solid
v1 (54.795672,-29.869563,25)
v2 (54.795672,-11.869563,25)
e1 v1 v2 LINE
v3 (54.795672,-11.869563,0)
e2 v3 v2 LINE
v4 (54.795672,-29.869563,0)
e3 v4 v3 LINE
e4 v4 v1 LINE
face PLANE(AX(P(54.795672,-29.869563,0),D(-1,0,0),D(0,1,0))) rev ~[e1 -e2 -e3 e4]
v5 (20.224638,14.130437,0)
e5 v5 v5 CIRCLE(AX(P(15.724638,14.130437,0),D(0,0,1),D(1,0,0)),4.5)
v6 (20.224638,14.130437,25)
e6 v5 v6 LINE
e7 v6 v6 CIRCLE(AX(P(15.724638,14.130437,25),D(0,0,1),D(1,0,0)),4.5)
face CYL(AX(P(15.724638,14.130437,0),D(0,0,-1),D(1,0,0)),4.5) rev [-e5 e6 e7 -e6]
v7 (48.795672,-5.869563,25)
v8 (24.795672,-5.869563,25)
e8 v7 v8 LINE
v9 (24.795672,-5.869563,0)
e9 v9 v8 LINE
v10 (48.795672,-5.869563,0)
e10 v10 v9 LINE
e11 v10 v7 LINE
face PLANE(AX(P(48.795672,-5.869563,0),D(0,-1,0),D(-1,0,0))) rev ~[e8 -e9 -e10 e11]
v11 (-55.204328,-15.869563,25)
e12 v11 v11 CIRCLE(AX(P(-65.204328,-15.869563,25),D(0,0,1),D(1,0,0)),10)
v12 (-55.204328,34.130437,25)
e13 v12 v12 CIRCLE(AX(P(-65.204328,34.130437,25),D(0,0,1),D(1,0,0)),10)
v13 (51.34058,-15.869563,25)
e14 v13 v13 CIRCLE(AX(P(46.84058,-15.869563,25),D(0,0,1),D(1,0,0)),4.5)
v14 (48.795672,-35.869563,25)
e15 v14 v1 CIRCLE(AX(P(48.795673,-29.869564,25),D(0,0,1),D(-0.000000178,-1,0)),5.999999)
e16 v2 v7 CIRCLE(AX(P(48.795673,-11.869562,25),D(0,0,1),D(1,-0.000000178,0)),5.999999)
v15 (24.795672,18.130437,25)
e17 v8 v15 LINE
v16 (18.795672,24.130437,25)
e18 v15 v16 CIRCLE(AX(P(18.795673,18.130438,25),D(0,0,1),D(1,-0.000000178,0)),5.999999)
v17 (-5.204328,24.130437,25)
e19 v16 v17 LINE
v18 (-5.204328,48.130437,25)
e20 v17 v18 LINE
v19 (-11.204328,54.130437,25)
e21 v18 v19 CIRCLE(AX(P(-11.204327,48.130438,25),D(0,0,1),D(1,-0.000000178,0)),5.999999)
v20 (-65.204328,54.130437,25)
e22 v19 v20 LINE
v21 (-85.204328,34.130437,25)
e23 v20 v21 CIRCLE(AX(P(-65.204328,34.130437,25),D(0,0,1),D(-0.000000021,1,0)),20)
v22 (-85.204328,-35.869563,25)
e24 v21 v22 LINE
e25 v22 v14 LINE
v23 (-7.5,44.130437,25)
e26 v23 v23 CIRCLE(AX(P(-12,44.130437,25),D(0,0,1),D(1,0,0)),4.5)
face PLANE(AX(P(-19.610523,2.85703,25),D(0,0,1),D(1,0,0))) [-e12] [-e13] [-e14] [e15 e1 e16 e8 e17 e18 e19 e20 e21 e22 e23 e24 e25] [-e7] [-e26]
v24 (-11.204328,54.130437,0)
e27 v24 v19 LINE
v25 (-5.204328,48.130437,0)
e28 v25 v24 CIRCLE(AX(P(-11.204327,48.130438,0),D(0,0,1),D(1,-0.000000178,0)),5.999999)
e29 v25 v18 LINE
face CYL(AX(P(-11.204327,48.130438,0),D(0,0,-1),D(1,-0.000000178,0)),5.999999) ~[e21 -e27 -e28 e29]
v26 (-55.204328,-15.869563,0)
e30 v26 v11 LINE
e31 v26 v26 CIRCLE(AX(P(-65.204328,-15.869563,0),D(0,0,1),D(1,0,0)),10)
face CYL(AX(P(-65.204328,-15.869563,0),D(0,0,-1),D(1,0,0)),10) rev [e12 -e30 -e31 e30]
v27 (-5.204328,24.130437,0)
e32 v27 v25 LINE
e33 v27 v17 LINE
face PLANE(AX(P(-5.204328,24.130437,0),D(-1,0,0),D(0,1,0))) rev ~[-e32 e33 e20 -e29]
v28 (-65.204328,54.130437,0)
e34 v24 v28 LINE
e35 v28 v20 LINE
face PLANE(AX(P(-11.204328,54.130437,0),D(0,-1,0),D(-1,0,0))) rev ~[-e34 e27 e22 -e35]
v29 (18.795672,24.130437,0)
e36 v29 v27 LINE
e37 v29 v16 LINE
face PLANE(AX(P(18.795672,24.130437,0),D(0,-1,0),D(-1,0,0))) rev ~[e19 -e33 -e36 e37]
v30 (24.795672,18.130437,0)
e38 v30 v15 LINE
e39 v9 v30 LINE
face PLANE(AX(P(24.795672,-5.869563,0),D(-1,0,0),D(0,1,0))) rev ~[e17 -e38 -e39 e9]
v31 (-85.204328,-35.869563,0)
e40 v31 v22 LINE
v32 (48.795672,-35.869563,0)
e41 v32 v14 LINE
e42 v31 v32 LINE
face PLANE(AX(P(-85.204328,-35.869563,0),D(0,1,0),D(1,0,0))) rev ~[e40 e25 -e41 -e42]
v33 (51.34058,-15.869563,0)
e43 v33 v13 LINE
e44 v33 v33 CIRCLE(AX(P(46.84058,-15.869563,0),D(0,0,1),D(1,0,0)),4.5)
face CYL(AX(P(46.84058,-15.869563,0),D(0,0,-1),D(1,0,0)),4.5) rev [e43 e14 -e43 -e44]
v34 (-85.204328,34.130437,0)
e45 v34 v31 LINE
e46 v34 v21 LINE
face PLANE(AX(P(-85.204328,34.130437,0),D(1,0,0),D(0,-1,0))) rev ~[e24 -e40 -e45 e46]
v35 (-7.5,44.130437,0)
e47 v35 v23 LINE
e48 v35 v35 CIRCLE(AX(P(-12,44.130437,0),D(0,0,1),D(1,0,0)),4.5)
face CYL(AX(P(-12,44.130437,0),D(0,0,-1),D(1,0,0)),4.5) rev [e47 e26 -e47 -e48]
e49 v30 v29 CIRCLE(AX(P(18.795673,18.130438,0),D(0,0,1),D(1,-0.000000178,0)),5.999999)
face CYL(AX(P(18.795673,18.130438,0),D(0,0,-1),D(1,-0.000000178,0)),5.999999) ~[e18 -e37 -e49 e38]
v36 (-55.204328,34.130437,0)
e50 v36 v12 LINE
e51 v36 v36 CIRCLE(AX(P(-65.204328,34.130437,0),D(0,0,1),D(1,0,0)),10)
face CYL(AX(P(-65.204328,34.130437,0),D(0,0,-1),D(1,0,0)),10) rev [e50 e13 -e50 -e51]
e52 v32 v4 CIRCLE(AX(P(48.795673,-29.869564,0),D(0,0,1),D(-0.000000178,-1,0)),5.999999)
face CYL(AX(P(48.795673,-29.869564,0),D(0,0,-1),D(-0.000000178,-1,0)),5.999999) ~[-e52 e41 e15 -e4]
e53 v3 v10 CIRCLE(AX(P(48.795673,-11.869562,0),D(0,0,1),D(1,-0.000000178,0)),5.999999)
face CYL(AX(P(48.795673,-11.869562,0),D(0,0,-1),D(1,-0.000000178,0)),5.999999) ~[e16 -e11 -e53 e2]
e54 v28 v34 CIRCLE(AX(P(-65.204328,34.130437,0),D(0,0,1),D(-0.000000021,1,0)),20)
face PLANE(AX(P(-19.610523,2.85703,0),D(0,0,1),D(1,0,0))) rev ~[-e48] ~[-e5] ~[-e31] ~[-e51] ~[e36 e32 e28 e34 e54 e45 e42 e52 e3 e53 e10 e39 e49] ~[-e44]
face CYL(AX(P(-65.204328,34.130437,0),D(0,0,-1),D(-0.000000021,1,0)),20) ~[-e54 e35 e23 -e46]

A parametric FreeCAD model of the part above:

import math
import FreeCAD as App
import Part
import Sketcher
Q = App.Units.Quantity

doc = App.newDocument("Part")
body = doc.addObject("PartDesign::Body", "Body")

sketch1 = doc.addObject("Sketcher::SketchObject", "Sketch")
body.addObject(sketch1)
sketch1.AttachmentSupport = (doc.XY_Plane, [""])
sketch1.MapMode = "FlatFace"
sketch1.addGeometry([
    Part.ArcOfCircle(Part.Circle(App.Vector(-65.2, 34.1, 0), App.Vector(0, 0, 1), 20), math.radians(90), math.radians(180)),
    Part.LineSegment(App.Vector(-85.2, 34.1, 0), App.Vector(-85.2, -35.9, 0)),
    Part.LineSegment(App.Vector(-85.2, -35.9, 0), App.Vector(48.8, -35.9, 0)),
    Part.ArcOfCircle(Part.Circle(App.Vector(48.8, -29.9, 0), App.Vector(0, 0, 1), 6), math.radians(-90), math.radians(0)),
    Part.LineSegment(App.Vector(54.8, -29.9, 0), App.Vector(54.8, -11.9, 0)),
    Part.ArcOfCircle(Part.Circle(App.Vector(48.8, -11.9, 0), App.Vector(0, 0, 1), 6), math.radians(0), math.radians(90)),
    Part.LineSegment(App.Vector(48.8, -5.9, 0), App.Vector(24.8, -5.9, 0)),
    Part.LineSegment(App.Vector(24.8, -5.9, 0), App.Vector(24.8, 18.1, 0)),
    Part.ArcOfCircle(Part.Circle(App.Vector(18.8, 18.1, 0), App.Vector(0, 0, 1), 6), math.radians(0), math.radians(90)),
    Part.LineSegment(App.Vector(18.8, 24.1, 0), App.Vector(-5.2, 24.1, 0)),
    Part.LineSegment(App.Vector(-5.2, 24.1, 0), App.Vector(-5.2, 48.1, 0)),
    Part.ArcOfCircle(Part.Circle(App.Vector(-11.2, 48.1, 0), App.Vector(0, 0, 1), 6), math.radians(0), math.radians(90)),
    Part.LineSegment(App.Vector(-11.2, 54.1, 0), App.Vector(-65.2, 54.1, 0)),
    Part.Circle(App.Vector(-65.2, -15.9, 0), App.Vector(0, 0, 1), 10),
    Part.Circle(App.Vector(46.8, -15.9, 0), App.Vector(0, 0, 1), 4.5),
    Part.Circle(App.Vector(-65.2, 34.1, 0), App.Vector(0, 0, 1), 10),
    Part.Circle(App.Vector(-12, 44.1, 0), App.Vector(0, 0, 1), 4.5),
    Part.Circle(App.Vector(15.7, 14.1, 0), App.Vector(0, 0, 1), 4.5),
], False)
sketch1.addConstraint([
    Sketcher.Constraint("Tangent", 0, 2, 1, 1),
    Sketcher.Constraint("Coincident", 1, 2, 2, 1),
    Sketcher.Constraint("Tangent", 2, 2, 3, 1),
    Sketcher.Constraint("Tangent", 3, 2, 4, 1),
    Sketcher.Constraint("Tangent", 4, 2, 5, 1),
    Sketcher.Constraint("Tangent", 5, 2, 6, 1),
    Sketcher.Constraint("Coincident", 6, 2, 7, 1),
    Sketcher.Constraint("Tangent", 7, 2, 8, 1),
    Sketcher.Constraint("Tangent", 8, 2, 9, 1),
    Sketcher.Constraint("Coincident", 9, 2, 10, 1),
    Sketcher.Constraint("Tangent", 10, 2, 11, 1),
    Sketcher.Constraint("Tangent", 11, 2, 12, 1),
    Sketcher.Constraint("Tangent", 12, 2, 0, 1),
    Sketcher.Constraint("Vertical", 1),
    Sketcher.Constraint("Horizontal", 2),
    Sketcher.Constraint("Vertical", 4),
    Sketcher.Constraint("Horizontal", 6),
    Sketcher.Constraint("Vertical", 7),
    Sketcher.Constraint("Horizontal", 9),
    Sketcher.Constraint("Vertical", 10),
    Sketcher.Constraint("Horizontal", 12),
    Sketcher.Constraint("Coincident", 15, 3, 0, 3),
    Sketcher.Constraint("Equal", 3, 5),
    Sketcher.Constraint("Equal", 5, 8),
    Sketcher.Constraint("Equal", 8, 11),
    Sketcher.Constraint("Equal", 13, 15),
    Sketcher.Constraint("Equal", 14, 16),
    Sketcher.Constraint("Equal", 16, 17),
    Sketcher.Constraint("Horizontal", 13, 3, 14, 3),
    Sketcher.Constraint("Vertical", 0, 3, 13, 3),
    Sketcher.Constraint("Equal", 6, 9),
    Sketcher.Constraint("Equal", 9, 7),
    Sketcher.Constraint("Equal", 7, 10),
    Sketcher.Constraint("Diameter", 13, Q("20 mm")),
    Sketcher.Constraint("Diameter", 14, Q("9 mm")),
    Sketcher.Constraint("Radius", 0, Q("20 mm")),
    Sketcher.Constraint("Radius", 3, Q("5.999999 mm")),
    Sketcher.Constraint("DistanceX", 2, 1, 2, 2, Q("134 mm")),
    Sketcher.Constraint("DistanceX", 6, 2, 6, 1, Q("24 mm")),
    Sketcher.Constraint("DistanceY", 1, 2, 1, 1, Q("70 mm")),
    Sketcher.Constraint("DistanceX", 16, 3, -1, 1, Q("12 mm")),
    Sketcher.Constraint("DistanceY", 13, 3, 0, 3, Q("50 mm")),
    Sketcher.Constraint("DistanceY", 16, 3, 11, 3, Q("4.000001 mm")),
    Sketcher.Constraint("DistanceY", 17, 3, 8, 3, Q("4.000001 mm")),
    Sketcher.Constraint("DistanceY", 5, 3, -1, 1, Q("11.869562 mm")),
    Sketcher.Constraint("DistanceX", 13, 3, -1, 1, Q("65.204328 mm")),
    Sketcher.Constraint("DistanceX", -1, 1, 14, 3, Q("46.84058 mm")),
    Sketcher.Constraint("DistanceX", -1, 1, 17, 3, Q("15.724638 mm")),
])
pad1 = doc.addObject("PartDesign::Pad", "Pad")
body.addObject(pad1)
pad1.Profile = sketch1
pad1.Length = 25

doc.recompute()
